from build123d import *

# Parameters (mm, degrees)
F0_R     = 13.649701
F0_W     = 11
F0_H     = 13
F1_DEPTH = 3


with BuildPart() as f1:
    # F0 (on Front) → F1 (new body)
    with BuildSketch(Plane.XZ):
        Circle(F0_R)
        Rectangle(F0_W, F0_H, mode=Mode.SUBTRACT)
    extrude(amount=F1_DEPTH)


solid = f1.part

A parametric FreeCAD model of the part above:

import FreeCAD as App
import Part
import Sketcher

V = App.Vector


def add_polygon(sketch, points):
    """Adds a closed chain of lines whose ends are joined by coincident constraints."""
    first, n = sketch.GeometryCount, len(points)
    for a, b in zip(points, points[1:] + points[:1]):
        sketch.addGeometry(Part.LineSegment(App.Vector(*a, 0), App.Vector(*b, 0)), False)
    for i in range(n):
        sketch.addConstraint(Sketcher.Constraint("Coincident", first + i, 2, first + (i + 1) % n, 1))

doc = App.newDocument("Part")
body = doc.addObject("PartDesign::Body", "Body")

sketch1 = body.newObject("Sketcher::SketchObject", "Sketch")
sketch1.AttachmentSupport = (doc.getObject("XZ_Plane"), [""])
sketch1.MapMode = "FlatFace"
sketch1.addGeometry(Part.Circle(V(0, 0, 0), V(0, 0, 1), 13.649701), False)
add_polygon(sketch1, [(5.5, -6.5), (-5.5, -6.5), (-5.5, 6.5), (5.5, 6.5)])
sketch1.addConstraint(Sketcher.Constraint("Horizontal", 1))
sketch1.addConstraint(Sketcher.Constraint("Vertical", 2))
sketch1.addConstraint(Sketcher.Constraint("Horizontal", 3))
sketch1.addConstraint(Sketcher.Constraint("Vertical", 4))
sketch1.addConstraint(Sketcher.Constraint("Coincident", 0, 3, -1, 1))
sketch1.addConstraint(Sketcher.Constraint("Symmetric", 1, 2, 3, 2, -1, 1))
sketch1.addConstraint(Sketcher.Constraint("DistanceX", 1, 2, 1, 1, 11.0))
sketch1.addConstraint(Sketcher.Constraint("DistanceY", 2, 1, 2, 2, 13.0))
sketch1.addConstraint(Sketcher.Constraint("Diameter", 0, 27.299402))
pad1 = body.newObject("PartDesign::Pad", "Pad")
pad1.Profile = sketch1
pad1.Length = 3

doc.recompute()
